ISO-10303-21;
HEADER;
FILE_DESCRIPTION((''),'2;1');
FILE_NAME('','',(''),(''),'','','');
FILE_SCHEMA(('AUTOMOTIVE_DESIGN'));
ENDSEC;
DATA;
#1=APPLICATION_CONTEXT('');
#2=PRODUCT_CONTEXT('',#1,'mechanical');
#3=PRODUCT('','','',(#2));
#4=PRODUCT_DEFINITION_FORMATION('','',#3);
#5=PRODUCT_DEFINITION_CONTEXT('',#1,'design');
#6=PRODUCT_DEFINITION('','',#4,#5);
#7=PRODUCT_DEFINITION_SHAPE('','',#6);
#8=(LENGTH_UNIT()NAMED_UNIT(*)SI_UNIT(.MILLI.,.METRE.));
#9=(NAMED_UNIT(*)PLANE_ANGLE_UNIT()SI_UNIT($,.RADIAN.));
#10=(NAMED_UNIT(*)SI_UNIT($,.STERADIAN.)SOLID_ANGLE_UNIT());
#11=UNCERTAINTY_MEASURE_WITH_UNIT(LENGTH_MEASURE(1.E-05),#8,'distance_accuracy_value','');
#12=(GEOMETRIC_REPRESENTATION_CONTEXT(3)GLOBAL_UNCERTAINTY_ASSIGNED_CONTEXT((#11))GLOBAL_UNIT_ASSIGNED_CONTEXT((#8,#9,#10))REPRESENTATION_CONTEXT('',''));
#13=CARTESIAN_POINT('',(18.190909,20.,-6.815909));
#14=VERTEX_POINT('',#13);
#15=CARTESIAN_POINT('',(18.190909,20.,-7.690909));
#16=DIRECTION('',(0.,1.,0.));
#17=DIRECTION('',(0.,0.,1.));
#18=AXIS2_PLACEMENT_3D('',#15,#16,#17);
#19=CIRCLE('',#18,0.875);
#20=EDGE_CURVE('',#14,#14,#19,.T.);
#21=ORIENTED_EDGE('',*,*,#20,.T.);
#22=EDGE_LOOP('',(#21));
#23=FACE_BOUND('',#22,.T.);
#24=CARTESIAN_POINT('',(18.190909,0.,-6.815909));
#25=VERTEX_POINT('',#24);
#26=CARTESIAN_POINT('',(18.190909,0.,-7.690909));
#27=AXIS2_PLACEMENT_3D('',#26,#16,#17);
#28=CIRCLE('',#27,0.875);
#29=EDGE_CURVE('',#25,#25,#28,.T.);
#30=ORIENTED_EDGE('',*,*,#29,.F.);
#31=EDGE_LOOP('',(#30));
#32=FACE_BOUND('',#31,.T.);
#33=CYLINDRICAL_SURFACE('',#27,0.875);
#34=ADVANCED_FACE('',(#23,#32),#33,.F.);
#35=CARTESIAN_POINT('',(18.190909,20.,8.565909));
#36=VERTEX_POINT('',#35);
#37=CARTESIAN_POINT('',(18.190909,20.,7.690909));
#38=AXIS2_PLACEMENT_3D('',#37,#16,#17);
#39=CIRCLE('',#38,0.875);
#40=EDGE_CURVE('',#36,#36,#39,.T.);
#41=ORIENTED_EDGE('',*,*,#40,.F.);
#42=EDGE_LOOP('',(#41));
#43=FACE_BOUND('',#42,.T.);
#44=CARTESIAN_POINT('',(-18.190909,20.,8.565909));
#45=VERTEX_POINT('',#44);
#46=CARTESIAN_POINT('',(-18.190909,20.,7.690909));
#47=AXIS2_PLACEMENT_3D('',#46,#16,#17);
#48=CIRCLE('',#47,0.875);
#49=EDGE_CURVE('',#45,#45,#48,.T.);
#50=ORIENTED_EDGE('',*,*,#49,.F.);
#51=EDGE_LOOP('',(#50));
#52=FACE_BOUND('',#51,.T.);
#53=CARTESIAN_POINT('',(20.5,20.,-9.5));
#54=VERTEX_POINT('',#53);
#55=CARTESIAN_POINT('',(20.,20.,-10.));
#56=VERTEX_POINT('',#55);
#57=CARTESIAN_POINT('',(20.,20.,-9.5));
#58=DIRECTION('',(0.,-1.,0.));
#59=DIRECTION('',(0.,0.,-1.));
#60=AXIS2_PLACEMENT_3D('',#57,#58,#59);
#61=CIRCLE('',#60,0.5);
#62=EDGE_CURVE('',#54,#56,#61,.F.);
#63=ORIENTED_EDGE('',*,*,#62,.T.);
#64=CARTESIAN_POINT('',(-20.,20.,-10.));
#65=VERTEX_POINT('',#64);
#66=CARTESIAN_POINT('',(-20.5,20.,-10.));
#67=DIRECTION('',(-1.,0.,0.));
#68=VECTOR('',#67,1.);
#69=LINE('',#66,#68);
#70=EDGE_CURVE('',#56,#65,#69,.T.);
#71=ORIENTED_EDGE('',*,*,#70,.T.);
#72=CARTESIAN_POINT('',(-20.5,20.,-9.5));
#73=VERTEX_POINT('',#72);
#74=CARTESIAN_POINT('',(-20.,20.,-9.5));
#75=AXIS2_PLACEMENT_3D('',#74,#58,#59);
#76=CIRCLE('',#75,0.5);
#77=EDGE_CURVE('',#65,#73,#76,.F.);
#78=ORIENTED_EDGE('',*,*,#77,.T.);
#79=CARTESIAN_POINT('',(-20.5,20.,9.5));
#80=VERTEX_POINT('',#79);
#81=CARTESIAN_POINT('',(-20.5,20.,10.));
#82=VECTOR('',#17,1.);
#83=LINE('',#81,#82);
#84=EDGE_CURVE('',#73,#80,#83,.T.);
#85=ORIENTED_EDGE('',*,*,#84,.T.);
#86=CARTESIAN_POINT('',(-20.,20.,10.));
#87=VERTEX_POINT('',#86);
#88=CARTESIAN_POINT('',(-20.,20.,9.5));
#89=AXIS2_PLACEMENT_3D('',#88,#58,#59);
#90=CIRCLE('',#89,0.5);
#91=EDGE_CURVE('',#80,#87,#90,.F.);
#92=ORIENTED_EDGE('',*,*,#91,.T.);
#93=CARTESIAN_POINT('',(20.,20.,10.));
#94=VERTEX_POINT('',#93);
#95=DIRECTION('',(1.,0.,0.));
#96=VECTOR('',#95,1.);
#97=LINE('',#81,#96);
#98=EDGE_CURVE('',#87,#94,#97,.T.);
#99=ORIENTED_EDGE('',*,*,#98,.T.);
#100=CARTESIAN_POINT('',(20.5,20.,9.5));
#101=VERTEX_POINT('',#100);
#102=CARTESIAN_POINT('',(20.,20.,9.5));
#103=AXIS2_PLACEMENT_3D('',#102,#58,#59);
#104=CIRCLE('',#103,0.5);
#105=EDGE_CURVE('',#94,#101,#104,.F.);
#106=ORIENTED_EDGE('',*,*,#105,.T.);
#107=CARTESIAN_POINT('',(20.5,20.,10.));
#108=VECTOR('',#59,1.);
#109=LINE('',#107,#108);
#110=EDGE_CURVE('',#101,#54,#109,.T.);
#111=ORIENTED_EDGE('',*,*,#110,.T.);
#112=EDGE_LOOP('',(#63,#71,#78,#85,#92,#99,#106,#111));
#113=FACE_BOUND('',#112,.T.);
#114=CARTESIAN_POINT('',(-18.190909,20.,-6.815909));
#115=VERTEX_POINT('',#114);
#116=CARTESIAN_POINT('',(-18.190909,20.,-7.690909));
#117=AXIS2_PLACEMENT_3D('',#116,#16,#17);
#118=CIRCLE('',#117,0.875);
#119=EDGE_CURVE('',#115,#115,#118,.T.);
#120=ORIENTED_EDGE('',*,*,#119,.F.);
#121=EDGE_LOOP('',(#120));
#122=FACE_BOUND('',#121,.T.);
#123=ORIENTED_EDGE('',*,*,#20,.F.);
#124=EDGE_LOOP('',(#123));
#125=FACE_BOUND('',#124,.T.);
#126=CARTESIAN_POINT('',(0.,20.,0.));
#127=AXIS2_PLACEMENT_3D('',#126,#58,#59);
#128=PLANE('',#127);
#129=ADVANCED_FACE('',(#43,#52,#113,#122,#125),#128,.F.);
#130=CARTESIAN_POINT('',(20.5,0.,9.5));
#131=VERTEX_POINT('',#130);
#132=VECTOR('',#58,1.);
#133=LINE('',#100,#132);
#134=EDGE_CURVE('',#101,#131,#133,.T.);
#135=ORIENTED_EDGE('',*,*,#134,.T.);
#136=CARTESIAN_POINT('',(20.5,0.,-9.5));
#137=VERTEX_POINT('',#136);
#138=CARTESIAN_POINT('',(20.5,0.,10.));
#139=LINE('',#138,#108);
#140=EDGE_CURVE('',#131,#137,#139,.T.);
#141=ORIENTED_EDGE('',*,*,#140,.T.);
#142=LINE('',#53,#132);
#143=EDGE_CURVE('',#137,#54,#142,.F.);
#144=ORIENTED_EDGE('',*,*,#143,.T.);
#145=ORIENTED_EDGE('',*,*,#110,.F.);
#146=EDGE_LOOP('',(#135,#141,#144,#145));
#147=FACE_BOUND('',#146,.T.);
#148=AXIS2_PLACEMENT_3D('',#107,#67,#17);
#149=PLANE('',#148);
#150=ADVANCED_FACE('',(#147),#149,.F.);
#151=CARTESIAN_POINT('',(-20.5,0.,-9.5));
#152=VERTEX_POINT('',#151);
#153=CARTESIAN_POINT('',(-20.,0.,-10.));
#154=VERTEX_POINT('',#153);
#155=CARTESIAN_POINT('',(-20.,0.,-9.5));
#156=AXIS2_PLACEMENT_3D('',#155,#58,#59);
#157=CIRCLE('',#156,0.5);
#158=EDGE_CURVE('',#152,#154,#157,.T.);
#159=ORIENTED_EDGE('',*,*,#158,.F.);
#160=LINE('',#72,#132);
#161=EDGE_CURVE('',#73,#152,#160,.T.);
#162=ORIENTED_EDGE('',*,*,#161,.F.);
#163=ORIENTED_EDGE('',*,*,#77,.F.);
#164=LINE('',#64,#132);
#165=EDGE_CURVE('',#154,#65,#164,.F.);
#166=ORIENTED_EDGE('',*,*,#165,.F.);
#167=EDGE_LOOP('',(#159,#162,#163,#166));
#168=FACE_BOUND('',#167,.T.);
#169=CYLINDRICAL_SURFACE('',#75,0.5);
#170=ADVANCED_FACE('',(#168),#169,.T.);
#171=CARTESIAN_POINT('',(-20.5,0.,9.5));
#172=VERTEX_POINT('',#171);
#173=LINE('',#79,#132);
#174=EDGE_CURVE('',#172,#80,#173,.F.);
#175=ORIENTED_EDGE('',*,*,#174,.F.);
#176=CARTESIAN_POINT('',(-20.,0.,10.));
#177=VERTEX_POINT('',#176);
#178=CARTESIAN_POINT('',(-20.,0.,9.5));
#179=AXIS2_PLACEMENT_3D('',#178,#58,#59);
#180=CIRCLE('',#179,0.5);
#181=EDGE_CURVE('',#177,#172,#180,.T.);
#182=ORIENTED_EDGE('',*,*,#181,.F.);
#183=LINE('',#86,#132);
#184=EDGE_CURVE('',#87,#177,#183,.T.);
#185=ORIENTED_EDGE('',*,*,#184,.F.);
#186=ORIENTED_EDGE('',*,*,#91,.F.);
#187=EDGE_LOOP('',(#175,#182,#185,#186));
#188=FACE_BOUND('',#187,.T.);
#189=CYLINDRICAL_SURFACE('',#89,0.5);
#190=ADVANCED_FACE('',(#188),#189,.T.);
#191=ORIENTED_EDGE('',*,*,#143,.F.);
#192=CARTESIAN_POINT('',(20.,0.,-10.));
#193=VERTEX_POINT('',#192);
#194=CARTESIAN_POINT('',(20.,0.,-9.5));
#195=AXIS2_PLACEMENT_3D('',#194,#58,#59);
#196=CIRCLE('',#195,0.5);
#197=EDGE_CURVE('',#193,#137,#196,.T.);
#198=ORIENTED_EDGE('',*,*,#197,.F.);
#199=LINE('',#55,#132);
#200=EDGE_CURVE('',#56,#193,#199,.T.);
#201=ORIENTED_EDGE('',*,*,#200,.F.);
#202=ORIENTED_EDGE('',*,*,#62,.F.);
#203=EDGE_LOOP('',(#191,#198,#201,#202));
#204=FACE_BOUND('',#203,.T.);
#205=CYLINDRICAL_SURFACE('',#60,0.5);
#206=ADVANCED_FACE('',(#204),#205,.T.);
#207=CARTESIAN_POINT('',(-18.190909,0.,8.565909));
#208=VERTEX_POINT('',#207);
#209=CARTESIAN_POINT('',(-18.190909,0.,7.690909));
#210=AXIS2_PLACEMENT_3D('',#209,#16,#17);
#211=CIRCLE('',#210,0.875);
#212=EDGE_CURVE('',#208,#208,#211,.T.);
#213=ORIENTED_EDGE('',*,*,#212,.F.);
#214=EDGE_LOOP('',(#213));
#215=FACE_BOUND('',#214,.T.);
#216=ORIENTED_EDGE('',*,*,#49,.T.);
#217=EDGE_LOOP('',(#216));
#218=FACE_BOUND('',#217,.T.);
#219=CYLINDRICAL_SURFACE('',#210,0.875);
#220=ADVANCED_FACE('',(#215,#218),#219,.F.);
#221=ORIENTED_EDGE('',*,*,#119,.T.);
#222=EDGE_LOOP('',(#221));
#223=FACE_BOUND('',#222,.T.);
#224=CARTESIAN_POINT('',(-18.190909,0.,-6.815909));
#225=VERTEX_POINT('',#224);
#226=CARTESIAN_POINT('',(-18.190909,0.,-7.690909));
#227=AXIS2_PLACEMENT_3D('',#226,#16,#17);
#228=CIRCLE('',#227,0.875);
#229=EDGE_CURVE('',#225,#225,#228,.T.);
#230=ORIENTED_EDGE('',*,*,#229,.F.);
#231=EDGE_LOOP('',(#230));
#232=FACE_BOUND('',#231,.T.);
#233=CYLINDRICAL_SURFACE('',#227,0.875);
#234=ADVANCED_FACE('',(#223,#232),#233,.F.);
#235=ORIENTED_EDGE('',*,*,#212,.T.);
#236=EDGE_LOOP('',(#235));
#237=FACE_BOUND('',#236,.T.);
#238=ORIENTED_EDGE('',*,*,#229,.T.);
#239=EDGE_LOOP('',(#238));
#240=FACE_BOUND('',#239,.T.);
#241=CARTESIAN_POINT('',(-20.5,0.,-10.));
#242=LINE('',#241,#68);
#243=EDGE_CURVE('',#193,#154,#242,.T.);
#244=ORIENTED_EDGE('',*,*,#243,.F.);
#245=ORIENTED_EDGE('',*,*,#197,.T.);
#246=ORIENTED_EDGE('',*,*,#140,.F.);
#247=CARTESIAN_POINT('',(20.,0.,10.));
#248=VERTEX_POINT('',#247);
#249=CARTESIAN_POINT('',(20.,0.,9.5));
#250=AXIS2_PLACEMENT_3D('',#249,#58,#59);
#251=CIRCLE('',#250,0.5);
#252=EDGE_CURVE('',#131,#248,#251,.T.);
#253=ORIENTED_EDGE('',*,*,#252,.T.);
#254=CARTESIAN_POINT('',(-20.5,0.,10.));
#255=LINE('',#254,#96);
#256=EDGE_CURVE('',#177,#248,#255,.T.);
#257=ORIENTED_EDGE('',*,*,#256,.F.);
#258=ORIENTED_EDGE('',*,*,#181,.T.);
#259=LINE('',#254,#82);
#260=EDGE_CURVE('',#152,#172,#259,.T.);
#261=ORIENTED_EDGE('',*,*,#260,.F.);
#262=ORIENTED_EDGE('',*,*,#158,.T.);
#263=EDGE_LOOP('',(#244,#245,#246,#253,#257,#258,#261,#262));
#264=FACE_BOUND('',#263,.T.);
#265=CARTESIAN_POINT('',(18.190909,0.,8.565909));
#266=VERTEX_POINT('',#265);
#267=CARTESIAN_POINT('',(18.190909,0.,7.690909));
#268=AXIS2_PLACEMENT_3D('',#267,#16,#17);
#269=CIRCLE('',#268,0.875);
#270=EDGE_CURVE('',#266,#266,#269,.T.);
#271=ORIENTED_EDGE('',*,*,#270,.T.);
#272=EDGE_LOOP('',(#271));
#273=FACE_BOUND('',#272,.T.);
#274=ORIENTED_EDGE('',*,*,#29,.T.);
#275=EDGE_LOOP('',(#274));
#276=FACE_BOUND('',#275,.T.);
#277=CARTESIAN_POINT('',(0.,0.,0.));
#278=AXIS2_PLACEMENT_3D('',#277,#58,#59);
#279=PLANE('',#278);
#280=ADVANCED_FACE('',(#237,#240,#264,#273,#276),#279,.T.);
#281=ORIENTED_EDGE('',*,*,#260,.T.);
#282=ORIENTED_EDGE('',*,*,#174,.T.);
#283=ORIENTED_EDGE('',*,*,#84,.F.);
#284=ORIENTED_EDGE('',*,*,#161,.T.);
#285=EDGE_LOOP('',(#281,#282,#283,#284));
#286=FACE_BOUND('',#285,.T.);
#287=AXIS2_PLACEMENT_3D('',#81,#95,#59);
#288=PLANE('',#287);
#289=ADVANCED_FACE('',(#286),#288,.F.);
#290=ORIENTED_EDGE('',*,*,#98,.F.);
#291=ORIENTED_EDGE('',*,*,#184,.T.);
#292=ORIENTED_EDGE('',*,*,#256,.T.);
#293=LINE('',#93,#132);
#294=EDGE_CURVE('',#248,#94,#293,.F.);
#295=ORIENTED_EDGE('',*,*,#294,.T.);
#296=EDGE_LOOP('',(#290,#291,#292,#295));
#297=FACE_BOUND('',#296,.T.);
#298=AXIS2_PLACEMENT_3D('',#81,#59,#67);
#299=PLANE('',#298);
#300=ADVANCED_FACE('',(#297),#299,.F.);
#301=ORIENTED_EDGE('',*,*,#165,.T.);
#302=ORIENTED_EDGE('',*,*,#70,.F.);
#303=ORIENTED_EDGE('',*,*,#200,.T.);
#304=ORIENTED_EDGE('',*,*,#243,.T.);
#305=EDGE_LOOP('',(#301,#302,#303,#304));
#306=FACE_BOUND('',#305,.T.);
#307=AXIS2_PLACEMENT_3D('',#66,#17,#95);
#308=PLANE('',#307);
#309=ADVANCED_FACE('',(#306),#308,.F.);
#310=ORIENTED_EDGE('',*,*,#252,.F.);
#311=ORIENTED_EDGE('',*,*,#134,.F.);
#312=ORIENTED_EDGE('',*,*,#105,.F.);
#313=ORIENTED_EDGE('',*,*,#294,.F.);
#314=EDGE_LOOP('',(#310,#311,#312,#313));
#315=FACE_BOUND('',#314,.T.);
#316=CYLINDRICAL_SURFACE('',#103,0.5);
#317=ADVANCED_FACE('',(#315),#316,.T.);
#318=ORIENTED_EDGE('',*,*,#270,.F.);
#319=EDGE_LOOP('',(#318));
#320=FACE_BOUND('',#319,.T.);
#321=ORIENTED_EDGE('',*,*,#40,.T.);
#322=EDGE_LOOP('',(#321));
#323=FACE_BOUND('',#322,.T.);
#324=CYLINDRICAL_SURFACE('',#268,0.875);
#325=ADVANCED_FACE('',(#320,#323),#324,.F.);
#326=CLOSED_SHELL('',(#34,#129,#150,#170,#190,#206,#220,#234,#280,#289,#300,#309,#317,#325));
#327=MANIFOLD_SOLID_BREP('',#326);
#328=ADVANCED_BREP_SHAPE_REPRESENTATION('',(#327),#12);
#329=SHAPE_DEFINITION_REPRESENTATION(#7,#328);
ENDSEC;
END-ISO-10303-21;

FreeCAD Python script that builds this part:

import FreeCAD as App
import Part
import Sketcher

V = App.Vector


def edges_at(feature, points):
    """Names of the edges that pass closest to the given points."""
    edges = feature.Shape.Edges
    near = lambda p: min(range(len(edges)), key=lambda i: edges[i].distToShape(Part.Vertex(*p))[0])
    return sorted({f"Edge{near(p) + 1}" for p in points})


def add_polygon(sketch, points):
    """Adds a closed chain of lines whose ends are joined by coincident constraints."""
    first, n = sketch.GeometryCount, len(points)
    for a, b in zip(points, points[1:] + points[:1]):
        sketch.addGeometry(Part.LineSegment(App.Vector(*a, 0), App.Vector(*b, 0)), False)
    for i in range(n):
        sketch.addConstraint(Sketcher.Constraint("Coincident", first + i, 2, first + (i + 1) % n, 1))

doc = App.newDocument("Part")
body = doc.addObject("PartDesign::Body", "Body")

# Sketch on XZ plane
sketch1 = body.newObject("Sketcher::SketchObject", "Sketch")
sketch1.AttachmentSupport = (doc.getObject("XZ_Plane"), [""])
sketch1.MapMode = "FlatFace"
add_polygon(sketch1, [(-20, -10), (-20, 10), (20, 10), (20, -10)])  # lines 0-3
sketch1.addConstraint([
    Sketcher.Constraint("Vertical", 0),
    Sketcher.Constraint("Horizontal", 1),
    Sketcher.Constraint("Vertical", 2),
    Sketcher.Constraint("Horizontal", 3),
    Sketcher.Constraint("Symmetric", 0, 2, 2, 2, -1, 1),
    Sketcher.Constraint("DistanceX", 1, 1, 1, 2, 41.0),
    Sketcher.Constraint("DistanceY", 0, 1, 0, 2, 20.0),
])
pad1 = body.newObject("PartDesign::Pad", "Pad")
pad1.Profile = sketch1
pad1.Length = 20
pad1.Reversed = True
doc.recompute()

fillet = body.newObject("PartDesign::Fillet", "Fillet")
fillet.Base = (pad1, edges_at(pad1, [
    (20.5, 10, 10),
    (-20.5, 10, 10),
    (-20.5, 10, -10),
    (20.5, 10, -10),
]))
fillet.Radius = 0.5

# Sketch on XZ plane
sketch2 = body.newObject("Sketcher::SketchObject", "Sketch001")
sketch2.AttachmentSupport = (doc.getObject("XZ_Plane"), [""])
sketch2.MapMode = "FlatFace"
sketch2.AttachmentOffset = App.Placement(V(0, 0, -20), App.Rotation())
sketch2.addGeometry([
    Part.Circle(V(18.2, -7.7, 0), V(0, 0, 1), 0.9),
    Part.Circle(V(18.2, 7.7, 0), V(0, 0, 1), 0.9),
    Part.Circle(V(-18.2, -7.7, 0), V(0, 0, 1), 0.9),
    Part.Circle(V(-18.2, 7.7, 0), V(0, 0, 1), 0.9),
], False)
sketch2.addConstraint([
    Sketcher.Constraint("Equal", 0, 1),
    Sketcher.Constraint("Equal", 1, 2),
    Sketcher.Constraint("Equal", 2, 3),
    Sketcher.Constraint("Symmetric", 1, 3, 2, 3, -1, 1),
    Sketcher.Constraint("Symmetric", 0, 3, 3, 3, -1, 1),
    Sketcher.Constraint("Symmetric", 0, 3, 2, 3, -2),
    Sketcher.Constraint("Diameter", 0, 1.75),
    Sketcher.Constraint("DistanceX", -1, 1, 0, 3, 18.190909),
    Sketcher.Constraint("DistanceY", 0, 3, -1, 1, 7.690909),
])
pocket1 = body.newObject("PartDesign::Pocket", "Pocket")
pocket1.Profile = sketch2
pocket1.Type = "ThroughAll"
pocket1.Reversed = True

doc.recompute()
